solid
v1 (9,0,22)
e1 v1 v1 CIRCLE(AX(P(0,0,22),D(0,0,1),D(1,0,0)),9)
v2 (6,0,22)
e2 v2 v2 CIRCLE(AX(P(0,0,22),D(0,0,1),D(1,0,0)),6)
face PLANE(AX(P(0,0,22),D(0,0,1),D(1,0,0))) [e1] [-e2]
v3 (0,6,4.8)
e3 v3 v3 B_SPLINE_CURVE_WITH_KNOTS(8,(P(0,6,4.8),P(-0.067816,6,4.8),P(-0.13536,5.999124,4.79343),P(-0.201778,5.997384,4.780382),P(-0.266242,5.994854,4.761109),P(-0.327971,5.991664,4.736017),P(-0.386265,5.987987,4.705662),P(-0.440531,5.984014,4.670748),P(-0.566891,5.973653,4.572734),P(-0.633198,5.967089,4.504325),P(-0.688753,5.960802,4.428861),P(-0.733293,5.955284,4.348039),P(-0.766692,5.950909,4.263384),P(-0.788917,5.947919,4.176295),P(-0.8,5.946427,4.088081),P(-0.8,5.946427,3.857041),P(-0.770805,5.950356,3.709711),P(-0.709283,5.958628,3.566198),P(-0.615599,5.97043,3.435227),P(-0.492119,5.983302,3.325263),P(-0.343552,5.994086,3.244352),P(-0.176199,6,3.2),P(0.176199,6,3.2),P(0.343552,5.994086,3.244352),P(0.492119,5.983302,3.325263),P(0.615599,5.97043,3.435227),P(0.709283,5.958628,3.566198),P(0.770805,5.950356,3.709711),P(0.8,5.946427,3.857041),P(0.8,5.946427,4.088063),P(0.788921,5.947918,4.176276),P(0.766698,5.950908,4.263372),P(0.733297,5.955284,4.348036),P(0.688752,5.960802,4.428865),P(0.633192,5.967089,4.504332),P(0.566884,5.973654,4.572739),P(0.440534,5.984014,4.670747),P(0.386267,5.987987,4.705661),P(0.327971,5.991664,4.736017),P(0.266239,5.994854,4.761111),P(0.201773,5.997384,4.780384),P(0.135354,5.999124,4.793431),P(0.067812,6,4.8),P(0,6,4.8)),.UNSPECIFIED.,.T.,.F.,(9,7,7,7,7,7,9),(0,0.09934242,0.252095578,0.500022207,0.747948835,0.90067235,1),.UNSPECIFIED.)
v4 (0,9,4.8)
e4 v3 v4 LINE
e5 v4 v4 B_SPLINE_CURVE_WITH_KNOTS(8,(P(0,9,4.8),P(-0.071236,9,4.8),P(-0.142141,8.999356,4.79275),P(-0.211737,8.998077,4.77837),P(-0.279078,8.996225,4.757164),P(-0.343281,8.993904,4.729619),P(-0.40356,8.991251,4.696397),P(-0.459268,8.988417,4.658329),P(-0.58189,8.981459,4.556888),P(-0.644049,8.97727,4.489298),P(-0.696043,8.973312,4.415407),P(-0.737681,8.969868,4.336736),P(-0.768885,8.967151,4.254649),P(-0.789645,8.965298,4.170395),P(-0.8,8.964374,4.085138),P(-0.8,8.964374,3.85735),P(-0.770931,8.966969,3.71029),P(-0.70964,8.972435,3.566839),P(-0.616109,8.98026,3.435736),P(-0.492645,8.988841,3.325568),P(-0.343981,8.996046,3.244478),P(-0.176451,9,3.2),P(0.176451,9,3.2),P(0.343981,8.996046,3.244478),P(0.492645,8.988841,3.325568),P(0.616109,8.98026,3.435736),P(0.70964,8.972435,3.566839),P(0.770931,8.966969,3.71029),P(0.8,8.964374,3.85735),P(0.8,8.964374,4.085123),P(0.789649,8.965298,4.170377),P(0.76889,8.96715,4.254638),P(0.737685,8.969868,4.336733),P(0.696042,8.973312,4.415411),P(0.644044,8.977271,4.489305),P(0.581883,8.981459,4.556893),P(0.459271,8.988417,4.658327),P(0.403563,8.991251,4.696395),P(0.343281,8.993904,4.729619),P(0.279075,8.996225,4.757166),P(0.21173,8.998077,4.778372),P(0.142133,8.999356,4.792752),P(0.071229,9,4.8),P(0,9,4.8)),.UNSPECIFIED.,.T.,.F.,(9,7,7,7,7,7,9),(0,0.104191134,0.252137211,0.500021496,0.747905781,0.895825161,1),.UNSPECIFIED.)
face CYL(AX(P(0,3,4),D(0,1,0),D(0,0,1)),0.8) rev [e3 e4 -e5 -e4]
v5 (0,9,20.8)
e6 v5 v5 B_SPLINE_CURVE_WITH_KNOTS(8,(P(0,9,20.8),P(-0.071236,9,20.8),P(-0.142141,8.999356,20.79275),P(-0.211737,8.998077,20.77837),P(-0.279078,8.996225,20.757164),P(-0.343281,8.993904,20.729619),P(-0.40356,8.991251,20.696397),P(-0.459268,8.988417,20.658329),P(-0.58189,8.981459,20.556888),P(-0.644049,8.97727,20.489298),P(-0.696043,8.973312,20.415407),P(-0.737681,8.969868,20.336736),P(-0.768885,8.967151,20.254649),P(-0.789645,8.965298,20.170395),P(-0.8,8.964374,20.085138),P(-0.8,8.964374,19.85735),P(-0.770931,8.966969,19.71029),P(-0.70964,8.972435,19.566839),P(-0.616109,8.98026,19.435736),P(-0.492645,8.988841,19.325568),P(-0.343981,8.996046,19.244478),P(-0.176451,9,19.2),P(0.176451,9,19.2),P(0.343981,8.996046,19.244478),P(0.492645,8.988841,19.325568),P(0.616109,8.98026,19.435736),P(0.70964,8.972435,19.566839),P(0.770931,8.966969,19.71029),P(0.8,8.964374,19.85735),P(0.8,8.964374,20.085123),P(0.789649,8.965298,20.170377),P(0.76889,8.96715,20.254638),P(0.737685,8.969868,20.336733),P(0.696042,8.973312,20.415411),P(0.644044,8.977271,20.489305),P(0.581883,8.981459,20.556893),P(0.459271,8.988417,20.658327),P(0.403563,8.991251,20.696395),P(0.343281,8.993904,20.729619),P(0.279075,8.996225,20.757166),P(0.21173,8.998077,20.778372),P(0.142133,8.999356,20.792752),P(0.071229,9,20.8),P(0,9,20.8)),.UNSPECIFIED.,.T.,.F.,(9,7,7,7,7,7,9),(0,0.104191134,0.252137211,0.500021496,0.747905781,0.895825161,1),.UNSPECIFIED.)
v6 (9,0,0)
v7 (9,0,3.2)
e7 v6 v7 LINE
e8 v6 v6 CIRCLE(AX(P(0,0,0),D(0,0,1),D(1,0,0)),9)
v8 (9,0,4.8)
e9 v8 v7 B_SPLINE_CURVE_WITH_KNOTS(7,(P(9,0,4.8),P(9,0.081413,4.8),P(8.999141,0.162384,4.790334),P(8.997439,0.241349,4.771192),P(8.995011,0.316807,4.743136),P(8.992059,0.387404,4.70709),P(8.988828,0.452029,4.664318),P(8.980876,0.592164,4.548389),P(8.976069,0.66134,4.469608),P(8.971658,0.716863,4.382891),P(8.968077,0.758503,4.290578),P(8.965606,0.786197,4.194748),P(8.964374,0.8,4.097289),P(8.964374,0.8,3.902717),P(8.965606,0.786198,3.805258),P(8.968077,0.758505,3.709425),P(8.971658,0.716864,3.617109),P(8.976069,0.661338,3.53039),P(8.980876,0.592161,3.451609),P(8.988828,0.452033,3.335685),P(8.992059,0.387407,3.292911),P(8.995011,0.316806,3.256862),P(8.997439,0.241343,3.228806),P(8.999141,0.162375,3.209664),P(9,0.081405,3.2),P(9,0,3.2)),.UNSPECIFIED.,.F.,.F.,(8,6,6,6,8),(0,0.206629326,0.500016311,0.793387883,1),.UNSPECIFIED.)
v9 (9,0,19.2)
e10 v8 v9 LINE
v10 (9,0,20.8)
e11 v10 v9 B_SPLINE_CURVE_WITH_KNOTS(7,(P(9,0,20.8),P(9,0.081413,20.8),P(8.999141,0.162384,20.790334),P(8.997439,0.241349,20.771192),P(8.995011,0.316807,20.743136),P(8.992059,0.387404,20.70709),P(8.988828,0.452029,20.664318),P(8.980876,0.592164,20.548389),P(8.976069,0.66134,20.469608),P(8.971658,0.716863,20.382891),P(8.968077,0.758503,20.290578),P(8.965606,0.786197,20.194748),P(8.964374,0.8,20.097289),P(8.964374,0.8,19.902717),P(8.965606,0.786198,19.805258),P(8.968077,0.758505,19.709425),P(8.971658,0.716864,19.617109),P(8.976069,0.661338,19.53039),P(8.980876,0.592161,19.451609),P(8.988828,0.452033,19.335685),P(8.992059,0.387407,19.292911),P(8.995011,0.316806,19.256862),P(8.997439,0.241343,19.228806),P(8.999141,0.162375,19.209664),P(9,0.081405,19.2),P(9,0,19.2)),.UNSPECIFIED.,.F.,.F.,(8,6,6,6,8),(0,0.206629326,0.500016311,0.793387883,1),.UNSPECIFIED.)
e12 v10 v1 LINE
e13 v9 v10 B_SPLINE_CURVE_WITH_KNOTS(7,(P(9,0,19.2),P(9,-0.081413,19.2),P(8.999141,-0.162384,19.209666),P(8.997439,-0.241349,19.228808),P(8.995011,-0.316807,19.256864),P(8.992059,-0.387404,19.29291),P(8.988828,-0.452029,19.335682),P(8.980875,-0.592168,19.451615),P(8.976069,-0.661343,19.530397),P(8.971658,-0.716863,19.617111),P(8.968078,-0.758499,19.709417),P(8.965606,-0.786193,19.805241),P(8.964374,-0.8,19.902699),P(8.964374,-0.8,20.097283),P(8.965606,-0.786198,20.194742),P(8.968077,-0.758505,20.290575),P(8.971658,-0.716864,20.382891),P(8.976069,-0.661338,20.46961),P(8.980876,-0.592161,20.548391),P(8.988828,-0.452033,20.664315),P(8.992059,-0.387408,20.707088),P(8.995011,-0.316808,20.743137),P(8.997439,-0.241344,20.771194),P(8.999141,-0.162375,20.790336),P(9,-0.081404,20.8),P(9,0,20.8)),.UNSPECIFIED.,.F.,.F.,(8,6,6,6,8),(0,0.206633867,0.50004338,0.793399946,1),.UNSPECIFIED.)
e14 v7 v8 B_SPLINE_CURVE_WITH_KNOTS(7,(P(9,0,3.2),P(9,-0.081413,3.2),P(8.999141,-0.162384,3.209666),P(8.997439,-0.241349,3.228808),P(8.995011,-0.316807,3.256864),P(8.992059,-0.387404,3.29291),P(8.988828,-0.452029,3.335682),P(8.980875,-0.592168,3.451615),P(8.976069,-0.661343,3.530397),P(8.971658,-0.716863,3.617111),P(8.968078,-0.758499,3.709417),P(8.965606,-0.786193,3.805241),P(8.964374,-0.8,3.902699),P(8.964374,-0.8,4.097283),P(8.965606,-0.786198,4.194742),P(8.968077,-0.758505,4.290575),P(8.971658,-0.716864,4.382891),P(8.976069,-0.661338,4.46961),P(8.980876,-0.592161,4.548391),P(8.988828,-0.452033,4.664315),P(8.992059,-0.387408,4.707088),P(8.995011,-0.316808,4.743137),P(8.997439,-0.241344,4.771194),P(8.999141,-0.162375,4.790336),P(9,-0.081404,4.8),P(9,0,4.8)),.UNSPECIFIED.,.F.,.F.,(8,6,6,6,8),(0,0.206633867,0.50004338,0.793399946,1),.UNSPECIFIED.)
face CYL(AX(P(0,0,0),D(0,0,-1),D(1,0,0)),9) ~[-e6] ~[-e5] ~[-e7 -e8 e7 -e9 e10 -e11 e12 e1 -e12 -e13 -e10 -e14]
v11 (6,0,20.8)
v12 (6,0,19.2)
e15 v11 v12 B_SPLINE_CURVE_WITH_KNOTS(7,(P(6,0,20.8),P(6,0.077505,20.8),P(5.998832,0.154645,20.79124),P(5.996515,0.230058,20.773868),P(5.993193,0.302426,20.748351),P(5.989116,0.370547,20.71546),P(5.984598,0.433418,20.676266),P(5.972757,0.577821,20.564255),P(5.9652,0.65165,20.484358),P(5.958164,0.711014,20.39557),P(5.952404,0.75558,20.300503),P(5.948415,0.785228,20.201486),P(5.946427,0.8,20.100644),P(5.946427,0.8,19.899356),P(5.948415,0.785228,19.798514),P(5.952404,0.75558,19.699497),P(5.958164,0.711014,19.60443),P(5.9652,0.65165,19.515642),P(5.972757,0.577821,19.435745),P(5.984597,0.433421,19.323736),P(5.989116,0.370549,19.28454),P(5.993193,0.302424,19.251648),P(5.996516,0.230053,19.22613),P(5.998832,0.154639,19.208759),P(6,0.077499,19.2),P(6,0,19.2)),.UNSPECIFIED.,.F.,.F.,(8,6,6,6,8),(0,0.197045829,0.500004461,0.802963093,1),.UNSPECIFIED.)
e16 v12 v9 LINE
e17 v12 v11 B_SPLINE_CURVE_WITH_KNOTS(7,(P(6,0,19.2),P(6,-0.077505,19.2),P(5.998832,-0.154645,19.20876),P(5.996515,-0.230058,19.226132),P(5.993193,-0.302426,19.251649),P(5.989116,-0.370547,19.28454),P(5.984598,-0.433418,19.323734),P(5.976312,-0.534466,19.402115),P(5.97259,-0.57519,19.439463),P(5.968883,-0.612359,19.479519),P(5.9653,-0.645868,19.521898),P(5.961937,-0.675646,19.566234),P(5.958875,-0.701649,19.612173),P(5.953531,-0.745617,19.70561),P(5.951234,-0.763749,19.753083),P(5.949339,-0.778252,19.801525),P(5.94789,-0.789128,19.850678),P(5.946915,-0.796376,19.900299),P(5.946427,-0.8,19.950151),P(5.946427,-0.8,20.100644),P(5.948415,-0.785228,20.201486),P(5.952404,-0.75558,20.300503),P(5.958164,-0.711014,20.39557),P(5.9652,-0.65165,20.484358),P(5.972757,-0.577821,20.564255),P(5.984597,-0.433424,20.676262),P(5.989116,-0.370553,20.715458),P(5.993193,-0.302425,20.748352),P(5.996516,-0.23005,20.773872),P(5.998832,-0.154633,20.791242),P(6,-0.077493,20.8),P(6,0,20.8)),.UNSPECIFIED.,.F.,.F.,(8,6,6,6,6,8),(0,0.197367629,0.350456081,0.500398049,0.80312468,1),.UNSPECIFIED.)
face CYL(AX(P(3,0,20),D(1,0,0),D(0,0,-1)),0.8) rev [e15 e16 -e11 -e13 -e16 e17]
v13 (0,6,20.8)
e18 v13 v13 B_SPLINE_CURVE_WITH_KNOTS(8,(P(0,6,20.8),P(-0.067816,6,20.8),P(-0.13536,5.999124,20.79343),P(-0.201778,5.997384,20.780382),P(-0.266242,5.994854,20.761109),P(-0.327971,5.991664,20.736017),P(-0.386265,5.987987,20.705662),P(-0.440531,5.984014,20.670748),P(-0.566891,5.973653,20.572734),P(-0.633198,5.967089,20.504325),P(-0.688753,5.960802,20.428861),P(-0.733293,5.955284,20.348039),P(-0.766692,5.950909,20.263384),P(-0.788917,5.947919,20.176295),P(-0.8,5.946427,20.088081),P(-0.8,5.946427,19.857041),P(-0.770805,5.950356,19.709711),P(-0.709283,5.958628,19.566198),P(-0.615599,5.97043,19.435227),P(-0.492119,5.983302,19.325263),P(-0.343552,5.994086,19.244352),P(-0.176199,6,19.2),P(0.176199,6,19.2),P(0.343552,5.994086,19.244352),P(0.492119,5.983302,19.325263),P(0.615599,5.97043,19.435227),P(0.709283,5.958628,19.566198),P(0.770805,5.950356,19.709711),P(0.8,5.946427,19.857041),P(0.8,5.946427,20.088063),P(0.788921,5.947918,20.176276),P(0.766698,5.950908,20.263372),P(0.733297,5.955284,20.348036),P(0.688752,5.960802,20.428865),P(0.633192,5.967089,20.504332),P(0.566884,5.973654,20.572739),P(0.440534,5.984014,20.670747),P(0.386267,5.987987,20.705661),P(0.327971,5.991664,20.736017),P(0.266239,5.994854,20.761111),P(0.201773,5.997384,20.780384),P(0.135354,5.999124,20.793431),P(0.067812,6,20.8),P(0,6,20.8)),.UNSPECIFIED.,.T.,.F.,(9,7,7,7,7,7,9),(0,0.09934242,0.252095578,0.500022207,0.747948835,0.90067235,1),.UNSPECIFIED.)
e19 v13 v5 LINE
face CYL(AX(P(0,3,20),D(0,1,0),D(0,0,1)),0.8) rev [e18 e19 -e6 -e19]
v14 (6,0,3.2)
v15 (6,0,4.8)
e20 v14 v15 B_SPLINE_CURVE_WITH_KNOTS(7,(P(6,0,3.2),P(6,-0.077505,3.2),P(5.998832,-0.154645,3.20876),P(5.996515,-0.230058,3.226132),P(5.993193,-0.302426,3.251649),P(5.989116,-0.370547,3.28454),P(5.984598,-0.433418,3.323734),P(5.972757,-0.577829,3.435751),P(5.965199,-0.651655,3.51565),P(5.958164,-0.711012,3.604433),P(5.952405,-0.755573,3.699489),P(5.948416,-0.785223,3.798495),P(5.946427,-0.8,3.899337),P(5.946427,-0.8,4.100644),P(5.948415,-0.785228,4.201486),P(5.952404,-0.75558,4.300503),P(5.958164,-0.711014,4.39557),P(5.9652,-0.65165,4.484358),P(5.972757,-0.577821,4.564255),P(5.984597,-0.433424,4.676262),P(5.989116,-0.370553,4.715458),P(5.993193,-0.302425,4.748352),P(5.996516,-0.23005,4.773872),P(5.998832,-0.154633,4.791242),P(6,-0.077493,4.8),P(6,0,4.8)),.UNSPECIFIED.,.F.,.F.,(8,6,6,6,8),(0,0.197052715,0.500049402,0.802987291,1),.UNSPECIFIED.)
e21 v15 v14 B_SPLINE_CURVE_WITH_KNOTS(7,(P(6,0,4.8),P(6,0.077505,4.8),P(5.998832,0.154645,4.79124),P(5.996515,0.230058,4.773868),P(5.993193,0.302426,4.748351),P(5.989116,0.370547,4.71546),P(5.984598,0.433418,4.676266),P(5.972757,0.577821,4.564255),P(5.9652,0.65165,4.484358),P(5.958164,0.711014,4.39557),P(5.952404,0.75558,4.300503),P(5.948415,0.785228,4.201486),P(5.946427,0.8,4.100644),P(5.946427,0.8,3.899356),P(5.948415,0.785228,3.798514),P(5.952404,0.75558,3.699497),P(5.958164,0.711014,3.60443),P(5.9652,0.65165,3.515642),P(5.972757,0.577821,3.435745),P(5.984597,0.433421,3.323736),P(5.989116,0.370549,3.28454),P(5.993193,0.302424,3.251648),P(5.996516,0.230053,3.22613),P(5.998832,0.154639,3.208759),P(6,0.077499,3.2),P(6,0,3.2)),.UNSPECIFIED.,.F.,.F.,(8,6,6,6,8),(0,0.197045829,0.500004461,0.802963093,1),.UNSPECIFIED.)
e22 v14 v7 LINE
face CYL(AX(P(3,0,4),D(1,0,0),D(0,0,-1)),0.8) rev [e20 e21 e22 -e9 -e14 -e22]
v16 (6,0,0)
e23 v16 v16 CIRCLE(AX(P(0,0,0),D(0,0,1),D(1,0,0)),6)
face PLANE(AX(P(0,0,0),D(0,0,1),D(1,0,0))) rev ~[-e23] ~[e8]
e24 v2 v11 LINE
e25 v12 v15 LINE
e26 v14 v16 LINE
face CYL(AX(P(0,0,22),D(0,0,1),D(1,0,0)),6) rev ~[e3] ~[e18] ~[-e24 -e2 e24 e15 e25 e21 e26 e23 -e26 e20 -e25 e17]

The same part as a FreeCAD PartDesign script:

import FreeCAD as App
import Part
import Sketcher
from FreeCAD import Vector
Q = App.Units.Quantity


def add_polygon(sketch, points):
    """Adds a closed chain of lines whose ends are joined by coincident constraints."""
    first, n = sketch.GeometryCount, len(points)
    for a, b in zip(points, points[1:] + points[:1]):
        sketch.addGeometry(Part.LineSegment(App.Vector(*a, 0), App.Vector(*b, 0)), False)
    for i in range(n):
        sketch.addConstraint(Sketcher.Constraint("Coincident", first + i, 2, first + (i + 1) % n, 1))

doc = App.newDocument("Part")
body = doc.addObject("PartDesign::Body", "Body")

# Sketch on XY plane
sketch1 = body.newObject("Sketcher::SketchObject", "Sketch")
sketch1.AttachmentSupport = (doc.getObject("XY_Plane"), [""])
sketch1.MapMode = "FlatFace"
sketch1.addGeometry(Part.Circle(Vector(0, 0, 0), Vector(0, 0, 1), 9), False)
sketch1.addConstraint(Sketcher.Constraint("Coincident", 0, 3, -1, 1))
sketch1.addConstraint(Sketcher.Constraint("Diameter", 0, 18.0))
pad1 = body.newObject("PartDesign::Pad", "Pad")
pad1.Profile = sketch1
pad1.Length = 22

# Sketch on XY plane
sketch2 = body.newObject("Sketcher::SketchObject", "Sketch001")
sketch2.AttachmentSupport = (doc.getObject("XY_Plane"), [""])
sketch2.MapMode = "FlatFace"
sketch2.AttachmentOffset = App.Placement(Vector(0, 0, 22), App.Rotation())
sketch2.addGeometry(Part.Circle(Vector(0, 0, 0), Vector(0, 0, 1), 6), False)
sketch2.addConstraint(Sketcher.Constraint("Coincident", 0, 3, -1, 1))
sketch2.addConstraint(Sketcher.Constraint("Diameter", 0, 12.0))
pocket1 = body.newObject("PartDesign::Pocket", "Pocket")
pocket1.Profile = sketch2
pocket1.Type = "ThroughAll"

# Sketch on XZ plane
sketch3 = body.newObject("Sketcher::SketchObject", "Sketch002")
sketch3.AttachmentSupport = (doc.getObject("XZ_Plane"), [""])
sketch3.MapMode = "FlatFace"
add_polygon(sketch3, [(2.519312, 4), (9, 4), (9, 3.2), (3, 3.2)])  # lines 0-3
sketch3.addGeometry(Part.LineSegment(Vector(9, 4, 0), Vector(2.519312, 4, 0)), True)  # axis
sketch3.addConstraint(Sketcher.Constraint("Horizontal", 0))
sketch3.addConstraint(Sketcher.Constraint("Vertical", 1))
sketch3.addConstraint(Sketcher.Constraint("Horizontal", 2))
sketch3.addConstraint(Sketcher.Constraint("Horizontal", 4))
sketch3.addConstraint(Sketcher.Constraint("Coincident", 4, 1, 0, 2))
sketch3.addConstraint(Sketcher.Constraint("Equal", 0, 4))
sketch3.addConstraint(Sketcher.Constraint("DistanceX", 2, 2, 2, 1, 6.0))
sketch3.addConstraint(Sketcher.Constraint("Angle", 3, Q("121 deg")))
sketch3.addConstraint(Sketcher.Constraint("DistanceY", 1, 2, 1, 1, 0.8))
sketch3.addConstraint(Sketcher.Constraint("DistanceX", -1, 1, 0, 2, 9.0))
sketch3.addConstraint(Sketcher.Constraint("DistanceY", -1, 1, 0, 2, 4.0))
groove = body.newObject("PartDesign::Groove", "Groove")
groove.Profile = sketch3
groove.ReferenceAxis = (sketch3, ["Axis0"])
groove.Angle = 360

# Sketch on YZ plane
sketch4 = body.newObject("Sketcher::SketchObject", "Sketch003")
sketch4.AttachmentSupport = (doc.getObject("YZ_Plane"), [""])
sketch4.MapMode = "FlatFace"
add_polygon(sketch4, [(2.519312, 4), (9, 4), (9, 4.8), (3, 4.8)])  # lines 0-3
sketch4.addGeometry(Part.LineSegment(Vector(9, 4, 0), Vector(2.519312, 4, 0)), True)  # axis
sketch4.addConstraint(Sketcher.Constraint("Horizontal", 0))
sketch4.addConstraint(Sketcher.Constraint("Vertical", 1))
sketch4.addConstraint(Sketcher.Constraint("Horizontal", 2))
sketch4.addConstraint(Sketcher.Constraint("Horizontal", 4))
sketch4.addConstraint(Sketcher.Constraint("Coincident", 4, 1, 0, 2))
sketch4.addConstraint(Sketcher.Constraint("Equal", 0, 4))
sketch4.addConstraint(Sketcher.Constraint("DistanceX", 2, 2, 2, 1, 6.0))
sketch4.addConstraint(Sketcher.Constraint("Angle", 3, Q("-121 deg")))
sketch4.addConstraint(Sketcher.Constraint("DistanceY", 1, 1, 1, 2, 0.8))
sketch4.addConstraint(Sketcher.Constraint("DistanceX", -1, 1, 0, 2, 9.0))
sketch4.addConstraint(Sketcher.Constraint("DistanceY", -1, 1, 0, 2, 4.0))
groove2 = body.newObject("PartDesign::Groove", "Groove001")
groove2.Profile = sketch4
groove2.ReferenceAxis = (sketch4, ["Axis0"])
groove2.Angle = 360
doc.recompute()

linearpattern = body.newObject("PartDesign::LinearPattern", "LinearPattern")
linearpattern.Originals = [groove]
linearpattern.Direction = (doc.getObject("Z_Axis"), [""])
linearpattern.Mode = "offset"
linearpattern.Offset = 16
linearpattern.Occurrences = 2
body.Tip = linearpattern
doc.recompute()

linearpattern2 = body.newObject("PartDesign::LinearPattern", "LinearPattern001")
linearpattern2.Originals = [groove2]
linearpattern2.Direction = (doc.getObject("Z_Axis"), [""])
linearpattern2.Mode = "offset"
linearpattern2.Offset = 16
linearpattern2.Occurrences = 2
body.Tip = linearpattern2

doc.recompute()
